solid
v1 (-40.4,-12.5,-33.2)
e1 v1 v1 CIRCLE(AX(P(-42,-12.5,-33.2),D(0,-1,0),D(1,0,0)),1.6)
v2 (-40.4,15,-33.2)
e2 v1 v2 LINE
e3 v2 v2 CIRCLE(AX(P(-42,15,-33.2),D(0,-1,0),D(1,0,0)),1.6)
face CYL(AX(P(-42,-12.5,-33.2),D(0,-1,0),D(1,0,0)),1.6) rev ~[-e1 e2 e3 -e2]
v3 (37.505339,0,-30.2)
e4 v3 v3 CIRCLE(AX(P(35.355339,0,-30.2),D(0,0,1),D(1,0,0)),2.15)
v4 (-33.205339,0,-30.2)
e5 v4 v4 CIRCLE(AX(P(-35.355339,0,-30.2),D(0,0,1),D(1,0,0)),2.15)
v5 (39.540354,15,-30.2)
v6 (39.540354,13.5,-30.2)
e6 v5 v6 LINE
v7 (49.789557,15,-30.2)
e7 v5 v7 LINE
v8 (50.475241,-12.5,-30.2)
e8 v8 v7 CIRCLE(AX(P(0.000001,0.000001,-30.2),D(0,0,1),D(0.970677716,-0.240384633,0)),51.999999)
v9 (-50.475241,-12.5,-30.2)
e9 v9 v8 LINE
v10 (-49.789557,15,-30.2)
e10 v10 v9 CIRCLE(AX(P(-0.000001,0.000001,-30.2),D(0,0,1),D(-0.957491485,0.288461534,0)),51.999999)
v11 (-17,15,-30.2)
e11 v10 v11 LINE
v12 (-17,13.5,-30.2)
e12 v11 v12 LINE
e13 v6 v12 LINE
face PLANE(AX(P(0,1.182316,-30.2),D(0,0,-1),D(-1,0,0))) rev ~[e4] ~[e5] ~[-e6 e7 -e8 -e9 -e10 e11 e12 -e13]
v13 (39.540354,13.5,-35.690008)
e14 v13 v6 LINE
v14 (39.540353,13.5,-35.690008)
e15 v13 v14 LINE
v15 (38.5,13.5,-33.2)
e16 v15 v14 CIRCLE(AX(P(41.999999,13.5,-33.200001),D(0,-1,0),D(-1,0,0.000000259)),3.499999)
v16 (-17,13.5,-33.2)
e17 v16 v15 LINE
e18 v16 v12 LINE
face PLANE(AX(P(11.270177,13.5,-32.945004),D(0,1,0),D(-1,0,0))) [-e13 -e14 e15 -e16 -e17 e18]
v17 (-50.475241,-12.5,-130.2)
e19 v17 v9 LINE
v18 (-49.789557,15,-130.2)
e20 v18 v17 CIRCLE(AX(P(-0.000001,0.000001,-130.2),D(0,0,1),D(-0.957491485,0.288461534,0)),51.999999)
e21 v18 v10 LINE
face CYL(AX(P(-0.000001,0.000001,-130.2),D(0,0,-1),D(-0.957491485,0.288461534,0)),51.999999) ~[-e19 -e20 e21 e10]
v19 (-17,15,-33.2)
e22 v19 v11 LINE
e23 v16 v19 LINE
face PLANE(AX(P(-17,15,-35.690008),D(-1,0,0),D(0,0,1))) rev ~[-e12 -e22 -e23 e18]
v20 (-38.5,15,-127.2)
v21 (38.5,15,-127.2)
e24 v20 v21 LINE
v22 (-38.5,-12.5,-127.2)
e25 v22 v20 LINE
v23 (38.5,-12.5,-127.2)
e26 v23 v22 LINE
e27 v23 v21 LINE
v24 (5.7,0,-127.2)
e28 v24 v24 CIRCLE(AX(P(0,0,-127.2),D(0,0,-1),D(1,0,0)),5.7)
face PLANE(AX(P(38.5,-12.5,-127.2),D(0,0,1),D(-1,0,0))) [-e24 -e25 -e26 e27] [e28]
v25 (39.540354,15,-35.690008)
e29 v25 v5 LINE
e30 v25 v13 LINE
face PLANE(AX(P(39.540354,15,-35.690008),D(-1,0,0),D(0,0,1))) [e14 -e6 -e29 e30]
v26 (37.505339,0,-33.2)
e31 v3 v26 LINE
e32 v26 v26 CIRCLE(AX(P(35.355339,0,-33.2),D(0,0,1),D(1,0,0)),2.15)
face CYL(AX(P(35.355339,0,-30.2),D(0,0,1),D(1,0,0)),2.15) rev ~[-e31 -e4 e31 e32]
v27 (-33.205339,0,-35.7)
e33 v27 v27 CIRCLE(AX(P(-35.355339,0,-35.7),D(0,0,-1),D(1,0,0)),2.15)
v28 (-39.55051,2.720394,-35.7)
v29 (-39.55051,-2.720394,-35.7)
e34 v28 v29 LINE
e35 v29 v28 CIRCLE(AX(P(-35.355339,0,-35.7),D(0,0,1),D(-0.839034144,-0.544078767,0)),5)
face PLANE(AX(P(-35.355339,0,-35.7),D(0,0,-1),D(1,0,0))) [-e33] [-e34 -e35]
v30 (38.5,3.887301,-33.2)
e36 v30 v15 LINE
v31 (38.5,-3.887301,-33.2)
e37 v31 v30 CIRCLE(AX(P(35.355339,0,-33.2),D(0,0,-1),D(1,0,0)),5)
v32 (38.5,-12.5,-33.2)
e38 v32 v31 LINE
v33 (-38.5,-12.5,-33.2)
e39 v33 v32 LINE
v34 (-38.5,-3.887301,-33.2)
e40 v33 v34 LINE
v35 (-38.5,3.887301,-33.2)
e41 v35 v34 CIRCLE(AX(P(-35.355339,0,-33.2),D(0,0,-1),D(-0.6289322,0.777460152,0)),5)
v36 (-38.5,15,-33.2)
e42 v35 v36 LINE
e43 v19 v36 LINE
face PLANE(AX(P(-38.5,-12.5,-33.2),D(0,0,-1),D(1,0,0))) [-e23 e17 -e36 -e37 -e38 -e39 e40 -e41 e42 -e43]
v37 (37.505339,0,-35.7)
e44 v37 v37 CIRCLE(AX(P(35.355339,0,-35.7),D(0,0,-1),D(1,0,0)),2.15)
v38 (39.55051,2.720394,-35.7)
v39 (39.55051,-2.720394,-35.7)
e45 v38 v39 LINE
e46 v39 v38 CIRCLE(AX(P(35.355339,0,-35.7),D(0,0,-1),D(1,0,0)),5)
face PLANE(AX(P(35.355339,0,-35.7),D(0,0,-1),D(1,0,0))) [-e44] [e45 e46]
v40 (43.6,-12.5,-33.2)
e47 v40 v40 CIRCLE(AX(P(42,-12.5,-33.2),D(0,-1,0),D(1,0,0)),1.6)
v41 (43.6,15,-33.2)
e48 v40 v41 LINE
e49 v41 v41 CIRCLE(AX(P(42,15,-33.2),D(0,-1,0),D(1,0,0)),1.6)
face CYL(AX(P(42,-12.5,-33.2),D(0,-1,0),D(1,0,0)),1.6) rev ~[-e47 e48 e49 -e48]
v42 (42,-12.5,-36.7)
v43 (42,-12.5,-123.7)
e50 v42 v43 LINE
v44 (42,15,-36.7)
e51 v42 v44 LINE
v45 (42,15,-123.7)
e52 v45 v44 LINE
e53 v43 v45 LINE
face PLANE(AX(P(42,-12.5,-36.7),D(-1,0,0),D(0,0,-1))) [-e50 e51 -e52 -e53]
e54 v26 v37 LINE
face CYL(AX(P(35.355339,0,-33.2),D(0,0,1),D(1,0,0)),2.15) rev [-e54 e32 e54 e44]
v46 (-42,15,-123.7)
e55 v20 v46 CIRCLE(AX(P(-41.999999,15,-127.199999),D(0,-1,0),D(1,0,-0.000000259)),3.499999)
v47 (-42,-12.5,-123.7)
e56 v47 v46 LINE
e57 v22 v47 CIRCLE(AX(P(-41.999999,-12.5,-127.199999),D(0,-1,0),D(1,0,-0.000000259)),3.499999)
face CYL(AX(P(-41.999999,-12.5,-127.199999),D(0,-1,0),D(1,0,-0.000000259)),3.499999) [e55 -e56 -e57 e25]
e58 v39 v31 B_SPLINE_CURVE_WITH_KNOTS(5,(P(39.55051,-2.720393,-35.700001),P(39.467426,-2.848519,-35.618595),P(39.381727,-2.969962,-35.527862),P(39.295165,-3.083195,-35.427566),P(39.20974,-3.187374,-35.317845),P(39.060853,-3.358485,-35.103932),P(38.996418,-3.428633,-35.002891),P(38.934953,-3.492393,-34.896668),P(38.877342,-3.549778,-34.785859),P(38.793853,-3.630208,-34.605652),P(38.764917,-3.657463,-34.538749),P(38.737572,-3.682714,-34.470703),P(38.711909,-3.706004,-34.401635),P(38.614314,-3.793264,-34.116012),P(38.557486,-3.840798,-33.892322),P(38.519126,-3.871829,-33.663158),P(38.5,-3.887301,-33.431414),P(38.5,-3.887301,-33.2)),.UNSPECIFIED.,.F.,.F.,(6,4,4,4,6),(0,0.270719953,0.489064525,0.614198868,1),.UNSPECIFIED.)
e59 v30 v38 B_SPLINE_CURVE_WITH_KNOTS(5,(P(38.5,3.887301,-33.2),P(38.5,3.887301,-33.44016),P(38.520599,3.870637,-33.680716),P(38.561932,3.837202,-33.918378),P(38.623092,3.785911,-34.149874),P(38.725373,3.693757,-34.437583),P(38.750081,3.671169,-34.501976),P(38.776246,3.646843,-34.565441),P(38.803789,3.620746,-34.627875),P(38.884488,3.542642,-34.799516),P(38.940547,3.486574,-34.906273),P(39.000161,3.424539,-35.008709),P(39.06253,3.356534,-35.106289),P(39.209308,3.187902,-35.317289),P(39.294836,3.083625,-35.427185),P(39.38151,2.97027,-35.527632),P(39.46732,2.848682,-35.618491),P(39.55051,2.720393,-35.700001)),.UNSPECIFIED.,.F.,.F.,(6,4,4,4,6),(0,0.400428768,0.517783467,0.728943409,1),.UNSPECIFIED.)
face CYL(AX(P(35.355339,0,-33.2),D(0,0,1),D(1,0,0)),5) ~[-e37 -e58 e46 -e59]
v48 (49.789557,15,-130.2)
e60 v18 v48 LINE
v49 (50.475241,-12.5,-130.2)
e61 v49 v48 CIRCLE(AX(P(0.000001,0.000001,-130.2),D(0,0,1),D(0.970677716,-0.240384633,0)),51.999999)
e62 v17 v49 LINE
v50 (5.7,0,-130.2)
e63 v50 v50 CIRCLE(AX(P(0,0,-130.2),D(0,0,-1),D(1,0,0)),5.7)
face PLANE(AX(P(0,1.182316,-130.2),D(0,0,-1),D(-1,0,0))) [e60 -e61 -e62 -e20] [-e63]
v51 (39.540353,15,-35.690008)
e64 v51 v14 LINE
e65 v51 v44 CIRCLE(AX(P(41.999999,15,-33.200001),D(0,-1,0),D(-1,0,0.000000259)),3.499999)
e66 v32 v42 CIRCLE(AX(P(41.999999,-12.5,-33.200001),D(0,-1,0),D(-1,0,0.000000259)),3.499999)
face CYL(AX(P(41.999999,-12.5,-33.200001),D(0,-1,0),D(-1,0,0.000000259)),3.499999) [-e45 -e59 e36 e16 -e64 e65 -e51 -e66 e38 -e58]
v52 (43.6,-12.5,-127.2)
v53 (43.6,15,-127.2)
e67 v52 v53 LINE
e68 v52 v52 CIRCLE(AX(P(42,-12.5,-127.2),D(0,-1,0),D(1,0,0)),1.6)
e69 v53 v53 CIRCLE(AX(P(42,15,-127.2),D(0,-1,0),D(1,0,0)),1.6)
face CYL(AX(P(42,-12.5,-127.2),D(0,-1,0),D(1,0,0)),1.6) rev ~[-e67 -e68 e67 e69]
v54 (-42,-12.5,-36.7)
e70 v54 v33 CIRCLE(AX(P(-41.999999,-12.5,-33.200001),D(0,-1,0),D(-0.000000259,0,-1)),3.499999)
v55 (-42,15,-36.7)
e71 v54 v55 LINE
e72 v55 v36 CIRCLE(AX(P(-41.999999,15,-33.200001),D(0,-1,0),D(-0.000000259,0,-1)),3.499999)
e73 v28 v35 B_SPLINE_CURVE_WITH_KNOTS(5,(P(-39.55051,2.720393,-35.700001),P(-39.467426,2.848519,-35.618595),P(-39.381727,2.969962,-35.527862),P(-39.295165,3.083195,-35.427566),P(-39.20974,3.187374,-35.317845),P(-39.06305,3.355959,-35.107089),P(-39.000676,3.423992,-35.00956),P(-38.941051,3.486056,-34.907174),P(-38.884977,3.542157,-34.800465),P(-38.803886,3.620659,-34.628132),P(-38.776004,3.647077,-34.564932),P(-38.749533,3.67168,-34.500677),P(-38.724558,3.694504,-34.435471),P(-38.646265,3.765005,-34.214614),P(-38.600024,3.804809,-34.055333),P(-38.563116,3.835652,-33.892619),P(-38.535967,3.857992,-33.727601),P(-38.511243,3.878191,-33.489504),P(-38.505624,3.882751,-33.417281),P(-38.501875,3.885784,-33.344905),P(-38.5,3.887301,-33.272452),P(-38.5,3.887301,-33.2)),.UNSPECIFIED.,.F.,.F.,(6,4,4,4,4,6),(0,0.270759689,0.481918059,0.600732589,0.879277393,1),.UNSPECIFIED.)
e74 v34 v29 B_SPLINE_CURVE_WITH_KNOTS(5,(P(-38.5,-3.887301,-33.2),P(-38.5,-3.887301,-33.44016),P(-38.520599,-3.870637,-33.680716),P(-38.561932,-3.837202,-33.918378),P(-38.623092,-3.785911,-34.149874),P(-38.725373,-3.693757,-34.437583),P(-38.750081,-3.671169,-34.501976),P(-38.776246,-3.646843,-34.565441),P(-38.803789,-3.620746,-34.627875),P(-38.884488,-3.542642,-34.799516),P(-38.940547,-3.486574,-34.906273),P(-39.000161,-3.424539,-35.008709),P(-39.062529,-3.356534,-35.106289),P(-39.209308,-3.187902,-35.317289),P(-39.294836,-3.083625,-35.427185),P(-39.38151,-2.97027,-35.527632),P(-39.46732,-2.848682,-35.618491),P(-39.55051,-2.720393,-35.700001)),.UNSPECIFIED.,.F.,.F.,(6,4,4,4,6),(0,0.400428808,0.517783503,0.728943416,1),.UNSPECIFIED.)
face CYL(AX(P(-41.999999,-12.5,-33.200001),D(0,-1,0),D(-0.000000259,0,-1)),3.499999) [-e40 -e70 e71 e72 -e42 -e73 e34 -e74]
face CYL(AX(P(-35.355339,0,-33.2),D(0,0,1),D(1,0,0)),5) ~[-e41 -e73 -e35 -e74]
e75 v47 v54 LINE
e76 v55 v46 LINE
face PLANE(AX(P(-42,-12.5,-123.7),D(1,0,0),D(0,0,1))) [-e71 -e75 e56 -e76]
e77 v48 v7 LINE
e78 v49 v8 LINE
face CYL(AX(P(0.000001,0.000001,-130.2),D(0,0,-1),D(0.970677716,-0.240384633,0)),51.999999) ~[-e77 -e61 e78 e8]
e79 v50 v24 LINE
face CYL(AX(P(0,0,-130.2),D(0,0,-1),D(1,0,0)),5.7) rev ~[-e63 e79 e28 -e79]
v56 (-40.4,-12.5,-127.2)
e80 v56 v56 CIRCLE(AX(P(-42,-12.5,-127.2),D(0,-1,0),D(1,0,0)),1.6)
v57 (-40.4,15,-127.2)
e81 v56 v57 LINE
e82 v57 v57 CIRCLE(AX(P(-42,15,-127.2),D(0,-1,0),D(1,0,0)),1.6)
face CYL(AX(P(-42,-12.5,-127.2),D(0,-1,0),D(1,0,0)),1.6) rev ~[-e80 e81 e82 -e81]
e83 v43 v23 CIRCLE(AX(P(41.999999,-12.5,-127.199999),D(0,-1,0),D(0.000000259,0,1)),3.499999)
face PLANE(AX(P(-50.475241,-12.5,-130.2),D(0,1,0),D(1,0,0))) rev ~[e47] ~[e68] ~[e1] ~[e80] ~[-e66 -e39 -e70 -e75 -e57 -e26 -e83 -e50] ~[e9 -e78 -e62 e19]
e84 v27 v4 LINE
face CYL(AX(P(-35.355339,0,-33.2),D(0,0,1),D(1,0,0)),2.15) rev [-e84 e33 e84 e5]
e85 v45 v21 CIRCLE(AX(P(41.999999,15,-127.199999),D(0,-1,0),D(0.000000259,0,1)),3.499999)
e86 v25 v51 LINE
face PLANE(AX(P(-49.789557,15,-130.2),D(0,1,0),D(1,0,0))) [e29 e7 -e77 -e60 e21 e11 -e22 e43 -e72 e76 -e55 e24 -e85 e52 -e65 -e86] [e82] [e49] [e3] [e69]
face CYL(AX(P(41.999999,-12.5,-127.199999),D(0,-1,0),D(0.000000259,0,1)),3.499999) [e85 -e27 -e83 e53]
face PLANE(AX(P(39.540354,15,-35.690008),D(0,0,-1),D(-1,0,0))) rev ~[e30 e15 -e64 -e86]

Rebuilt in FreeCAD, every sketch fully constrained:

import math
import FreeCAD as App
import Part
import Sketcher
from FreeCAD import Vector


def add_polygon(sketch, points):
    """Adds a closed chain of lines whose ends are joined by coincident constraints."""
    first, n = sketch.GeometryCount, len(points)
    for a, b in zip(points, points[1:] + points[:1]):
        sketch.addGeometry(Part.LineSegment(App.Vector(*a, 0), App.Vector(*b, 0)), False)
    for i in range(n):
        sketch.addConstraint(Sketcher.Constraint("Coincident", first + i, 2, first + (i + 1) % n, 1))

doc = App.newDocument("Part")
body = doc.addObject("PartDesign::Body", "Body")

sketch1 = body.newObject("Sketcher::SketchObject", "Sketch")
sketch1.AttachmentSupport = (doc.getObject("XY_Plane"), [""])
sketch1.MapMode = "FlatFace"
sketch1.addGeometry([
    Part.LineSegment(Vector(50, 15, 0), Vector(-50, 15, 0)),
    Part.ArcOfCircle(Part.Circle(Vector(0, 0, 0), Vector(0, 0, 1), 52), math.radians(163), math.radians(194)),
    Part.LineSegment(Vector(-50, -12, 0), Vector(50, -12, 0)),
    Part.ArcOfCircle(Part.Circle(Vector(0, 0, 0), Vector(0, 0, 1), 52), math.radians(-14), math.radians(17)),
], False)
sketch1.addConstraint([
    Sketcher.Constraint("Coincident", 0, 2, 1, 1),
    Sketcher.Constraint("Coincident", 1, 2, 2, 1),
    Sketcher.Constraint("Coincident", 2, 2, 3, 1),
    Sketcher.Constraint("Coincident", 3, 2, 0, 1),
    Sketcher.Constraint("Horizontal", 0),
    Sketcher.Constraint("Horizontal", 2),
    Sketcher.Constraint("Coincident", 1, 3, -1, 1),
    Sketcher.Constraint("Coincident", 3, 3, -1, 1),
    Sketcher.Constraint("Equal", 1, 3),
    Sketcher.Constraint("Radius", 1, 51.999999),
    Sketcher.Constraint("DistanceY", -1, 1, 0, 2, 15.0),
    Sketcher.Constraint("DistanceY", 1, 2, -1, 1, 12.5),
])
pad1 = body.newObject("PartDesign::Pad", "Pad")
pad1.Profile = sketch1
pad1.Length = 100

sketch2 = body.newObject("Sketcher::SketchObject", "Sketch001")
sketch2.AttachmentSupport = (doc.getObject("XZ_Plane"), [""])
sketch2.MapMode = "FlatFace"
sketch2.AttachmentOffset = App.Placement(Vector(0, 0, 12.5), App.Rotation())
sketch2.addGeometry([
    Part.Circle(Vector(-42, 97, 0), Vector(0, 0, 1), 1.6),
    Part.Circle(Vector(42, 97, 0), Vector(0, 0, 1), 1.6),
    Part.Circle(Vector(42, 3, 0), Vector(0, 0, 1), 1.6),
    Part.Circle(Vector(-42, 3, 0), Vector(0, 0, 1), 1.6),
    Part.ArcOfCircle(Part.Circle(Vector(-42, 97, 0), Vector(0, 0, 1), 3.5), math.radians(-90), math.radians(0)),
    Part.LineSegment(Vector(-42, 93.5, 0), Vector(-42, 6.5, 0)),
    Part.ArcOfCircle(Part.Circle(Vector(-42, 3, 0), Vector(0, 0, 1), 3.5), math.radians(0), math.radians(90)),
    Part.LineSegment(Vector(-38.5, 3, 0), Vector(38.5, 3, 0)),
    Part.ArcOfCircle(Part.Circle(Vector(42, 3, 0), Vector(0, 0, 1), 3.5), math.radians(90), math.radians(180)),
    Part.LineSegment(Vector(42, 6.5, 0), Vector(42, 93.5, 0)),
    Part.ArcOfCircle(Part.Circle(Vector(42, 97, 0), Vector(0, 0, 1), 3.5), math.radians(180), math.radians(270)),
    Part.LineSegment(Vector(38.5, 97, 0), Vector(-38.5, 97, 0)),
], False)
sketch2.addConstraint([
    Sketcher.Constraint("Coincident", 4, 1, 5, 1),
    Sketcher.Constraint("Coincident", 5, 2, 6, 2),
    Sketcher.Constraint("Coincident", 6, 1, 7, 1),
    Sketcher.Constraint("Coincident", 7, 2, 8, 2),
    Sketcher.Constraint("Coincident", 8, 1, 9, 1),
    Sketcher.Constraint("Coincident", 9, 2, 10, 2),
    Sketcher.Constraint("Coincident", 10, 1, 11, 1),
    Sketcher.Constraint("Coincident", 11, 2, 4, 2),
    Sketcher.Constraint("Vertical", 5),
    Sketcher.Constraint("Horizontal", 7),
    Sketcher.Constraint("Vertical", 9),
    Sketcher.Constraint("Horizontal", 11),
    Sketcher.Constraint("Coincident", 4, 3, 0, 3),
    Sketcher.Constraint("Coincident", 6, 3, 3, 3),
    Sketcher.Constraint("Coincident", 8, 3, 2, 3),
    Sketcher.Constraint("Coincident", 10, 3, 1, 3),
    Sketcher.Constraint("Equal", 0, 1),
    Sketcher.Constraint("Equal", 1, 2),
    Sketcher.Constraint("Equal", 2, 3),
    Sketcher.Constraint("Equal", 4, 6),
    Sketcher.Constraint("Equal", 6, 8),
    Sketcher.Constraint("Equal", 8, 10),
    Sketcher.Constraint("Symmetric", 0, 3, 1, 3, -2),
    Sketcher.Constraint("Symmetric", 2, 3, 3, 3, -2),
    Sketcher.Constraint("Horizontal", 8, 3, 6, 1),
    Sketcher.Constraint("Horizontal", 4, 3, 10, 1),
    Sketcher.Constraint("Vertical", 1, 3, 2, 3),
    Sketcher.Constraint("Vertical", 6, 3, 4, 1),
    Sketcher.Constraint("Vertical", 10, 3, 8, 1),
    Sketcher.Constraint("Diameter", 0, 3.2),
    Sketcher.Constraint("Radius", 4, 3.499999),
    Sketcher.Constraint("DistanceX", 7, 1, 7, 2, 77.0),
    Sketcher.Constraint("DistanceY", 5, 2, 5, 1, 87.0),
    Sketcher.Constraint("DistanceY", -1, 1, 0, 3, 97.0),
])
pocket1 = body.newObject("PartDesign::Pocket", "Pocket")
pocket1.Profile = sketch2
pocket1.Type = "ThroughAll"

sketch3 = body.newObject("Sketcher::SketchObject", "Sketch002")
sketch3.AttachmentSupport = (doc.getObject("XY_Plane"), [""])
sketch3.MapMode = "FlatFace"
sketch3.AttachmentOffset = App.Placement(Vector(0, 0, 100), App.Rotation())
sketch3.addGeometry([
    Part.Circle(Vector(-35.4, 0, 0), Vector(0, 0, 1), 2.1),
    Part.Circle(Vector(35.4, 0, 0), Vector(0, 0, 1), 2.1),
], False)
sketch3.addConstraint([
    Sketcher.Constraint("Equal", 0, 1),
    Sketcher.Constraint("Symmetric", 0, 3, 1, 3, -1, 1),
    Sketcher.Constraint("PointOnObject", 0, 3, -1),
    Sketcher.Constraint("Diameter", 0, 4.3),
    Sketcher.Constraint("DistanceX", 0, 3, -1, 1, 35.355339),
])
pocket2 = body.newObject("PartDesign::Pocket", "Pocket001")
pocket2.Profile = sketch3
pocket2.Length = 50

sketch4 = body.newObject("Sketcher::SketchObject", "Sketch003")
sketch4.AttachmentSupport = (doc.getObject("XY_Plane"), [""])
sketch4.MapMode = "FlatFace"
sketch4.AttachmentOffset = App.Placement(Vector(0, 0, 97), App.Rotation())
sketch4.addGeometry([
    Part.Circle(Vector(-35.4, 0, 0), Vector(0, 0, 1), 5),
    Part.Circle(Vector(-35.4, 0, 0), Vector(0, 0, 1), 2.1),
    Part.Circle(Vector(35.4, 0, 0), Vector(0, 0, 1), 5),
    Part.Circle(Vector(35.4, 0, 0), Vector(0, 0, 1), 2.1),
], False)
sketch4.addConstraint([
    Sketcher.Constraint("Coincident", 1, 3, 0, 3),
    Sketcher.Constraint("Coincident", 3, 3, 2, 3),
    Sketcher.Constraint("Equal", 0, 2),
    Sketcher.Constraint("Equal", 1, 3),
    Sketcher.Constraint("Symmetric", 0, 3, 2, 3, -1, 1),
    Sketcher.Constraint("PointOnObject", 0, 3, -1),
    Sketcher.Constraint("Diameter", 0, 10.0),
    Sketcher.Constraint("Diameter", 1, 4.3),
    Sketcher.Constraint("DistanceX", 0, 3, -1, 1, 35.355339),
])
pad2 = body.newObject("PartDesign::Pad", "Pad001")
pad2.Profile = sketch4
pad2.Length = 2.5
pad2.Reversed = True

sketch5 = body.newObject("Sketcher::SketchObject", "Sketch004")
sketch5.AttachmentSupport = (doc.getObject("XZ_Plane"), [""])
sketch5.MapMode = "FlatFace"
sketch5.AttachmentOffset = App.Placement(Vector(0, 0, -15), App.Rotation())
add_polygon(sketch5, [(40, 100), (40, 95), (-17, 95), (-17, 100)])
sketch5.addConstraint([
    Sketcher.Constraint("Vertical", 0),
    Sketcher.Constraint("Horizontal", 1),
    Sketcher.Constraint("Vertical", 2),
    Sketcher.Constraint("Horizontal", 3),
    Sketcher.Constraint("DistanceX", 1, 2, -1, 1, 17.0),
    Sketcher.Constraint("DistanceY", -1, 1, 2, 2, 100.0),
    Sketcher.Constraint("DistanceY", 0, 2, 0, 1, 5.490008),
    Sketcher.Constraint("DistanceX", 1, 2, 1, 1, 56.540354),
])
pocket3 = body.newObject("PartDesign::Pocket", "Pocket002")
pocket3.Profile = sketch5
pocket3.Length = 1.5
pocket3.Reversed = True

sketch6 = body.newObject("Sketcher::SketchObject", "Sketch005")
sketch6.AttachmentSupport = (doc.getObject("XY_Plane"), [""])
sketch6.MapMode = "FlatFace"
sketch6.addGeometry(Part.Circle(Vector(0, 0, 0), Vector(0, 0, 1), 6), False)
sketch6.addConstraint([
    Sketcher.Constraint("Coincident", 0, 3, -1, 1),
    Sketcher.Constraint("Diameter", 0, 11.4),
])
pocket4 = body.newObject("PartDesign::Pocket", "Pocket003")
pocket4.Profile = sketch6
pocket4.Length = 10
pocket4.Reversed = True
body2 = doc.addObject("PartDesign::Body", "Body001")
doc.recompute()

body.Placement = App.Placement(Vector(0, 0, -130.2), App.Rotation(Vector(0, 0, 1), 0))
boolean = body2.newObject("PartDesign::Boolean", "Boolean")
boolean.Type = "Fuse"
boolean.addObjects([body])

doc.recompute()
